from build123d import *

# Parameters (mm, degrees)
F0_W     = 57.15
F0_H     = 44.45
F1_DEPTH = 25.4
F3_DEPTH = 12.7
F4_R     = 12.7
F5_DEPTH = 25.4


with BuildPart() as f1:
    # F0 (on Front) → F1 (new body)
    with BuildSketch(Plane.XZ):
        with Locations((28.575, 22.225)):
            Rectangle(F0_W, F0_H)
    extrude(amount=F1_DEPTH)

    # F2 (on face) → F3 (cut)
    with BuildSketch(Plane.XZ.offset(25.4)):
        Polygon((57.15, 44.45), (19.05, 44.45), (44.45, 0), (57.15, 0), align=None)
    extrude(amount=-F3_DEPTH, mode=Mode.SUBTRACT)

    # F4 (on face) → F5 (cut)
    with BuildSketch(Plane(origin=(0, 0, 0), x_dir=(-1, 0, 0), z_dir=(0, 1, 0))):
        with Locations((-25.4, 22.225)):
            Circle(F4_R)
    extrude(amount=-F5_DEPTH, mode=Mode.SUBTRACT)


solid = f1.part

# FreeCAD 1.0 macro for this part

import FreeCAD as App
import Part
import Sketcher

V = App.Vector
Q = App.Units.Quantity

doc = App.newDocument("Part")
params = doc.addObject("Spreadsheet::Sheet", "Params")
for row, (alias, value) in enumerate([
    ("sketch1_width", "2.25 in"),
    ("sketch1_height", "1.75 in"),
    ("pad1_length", "1 in"),
    ("sketch2_width", "1.5 in"),
    ("sketch2_width2", "0.5 in"),
    ("sketch2_height", "1.75 in"),
    ("pocket1_length", "0.5 in"),
    ("sketch3_diameter", "1 in"),
    ("pocket2_length", "1 in"),
], start=1):
    params.set(f"A{row}", alias)
    params.set(f"B{row}", "=" + value)
    params.setAlias(f"B{row}", alias)

body = doc.addObject("PartDesign::Body", "Body")

# Sketch on XZ plane
sketch1 = body.newObject("Sketcher::SketchObject", "Sketch")
sketch1.AttachmentSupport = (doc.getObject("XZ_Plane"), [""])
sketch1.MapMode = "FlatFace"
sketch1.addGeometry([
    Part.LineSegment(V(0, 44.45, 0), V(0, 0, 0)),
    Part.LineSegment(V(0, 0, 0), V(57.15, 0, 0)),
    Part.LineSegment(V(57.15, 0, 0), V(57.15, 44.45, 0)),
    Part.LineSegment(V(57.15, 44.45, 0), V(0, 44.45, 0)),
], False)
sketch1.addConstraint([
    Sketcher.Constraint("Coincident", 0, 2, 1, 1),
    Sketcher.Constraint("Coincident", 1, 2, 2, 1),
    Sketcher.Constraint("Coincident", 2, 2, 3, 1),
    Sketcher.Constraint("Coincident", 3, 2, 0, 1),
    Sketcher.Constraint("Vertical", 0),
    Sketcher.Constraint("Horizontal", 1),
    Sketcher.Constraint("Vertical", 2),
    Sketcher.Constraint("Horizontal", 3),
    Sketcher.Constraint("Coincident", 0, 2, -1, 1),
    Sketcher.Constraint("DistanceX", 1, 1, 1, 2, Q("2.25 in")),
    Sketcher.Constraint("DistanceY", 0, 2, 0, 1, Q("1.75 in")),
])
sketch1.setExpression("Constraints[9]", "Params.sketch1_width")
sketch1.setExpression("Constraints[10]", "Params.sketch1_height")
pad1 = body.newObject("PartDesign::Pad", "Pad")
pad1.Profile = sketch1
pad1.setExpression("Length", "Params.pad1_length")

# Sketch on XZ plane
sketch2 = body.newObject("Sketcher::SketchObject", "Sketch001")
sketch2.AttachmentSupport = (doc.getObject("XZ_Plane"), [""])
sketch2.MapMode = "FlatFace"
sketch2.AttachmentOffset = App.Placement(V(0, 0, 1 * 25.4), App.Rotation())
sketch2.addGeometry([
    Part.LineSegment(V(57.15, 44.45, 0), V(19.05, 44.45, 0)),
    Part.LineSegment(V(19.05, 44.45, 0), V(44.45, 0, 0)),
    Part.LineSegment(V(44.45, 0, 0), V(57.15, 0, 0)),
    Part.LineSegment(V(57.15, 0, 0), V(57.15, 44.45, 0)),
], False)
sketch2.addConstraint([
    Sketcher.Constraint("Coincident", 0, 2, 1, 1),
    Sketcher.Constraint("Coincident", 1, 2, 2, 1),
    Sketcher.Constraint("Coincident", 2, 2, 3, 1),
    Sketcher.Constraint("Coincident", 3, 2, 0, 1),
    Sketcher.Constraint("Horizontal", 0),
    Sketcher.Constraint("Horizontal", 2),
    Sketcher.Constraint("Vertical", 3),
    Sketcher.Constraint("PointOnObject", 1, 2, -1),
    Sketcher.Constraint("DistanceX", 0, 2, 0, 1, Q("1.5 in")),
    Sketcher.Constraint("DistanceX", 2, 1, 2, 2, Q("0.5 in")),
    Sketcher.Constraint("DistanceY", 3, 1, 3, 2, Q("1.75 in")),
    Sketcher.Constraint("DistanceX", -1, 1, 0, 2, Q("0.75 in")),
])
sketch2.setExpression("Constraints[8]", "Params.sketch2_width")
sketch2.setExpression("Constraints[9]", "Params.sketch2_width2")
sketch2.setExpression("Constraints[10]", "Params.sketch2_height")
pocket1 = body.newObject("PartDesign::Pocket", "Pocket")
pocket1.Profile = sketch2
pocket1.setExpression("Length", "Params.pocket1_length")

# Sketch on XZ plane
sketch3 = body.newObject("Sketcher::SketchObject", "Sketch002")
sketch3.AttachmentSupport = (doc.getObject("XZ_Plane"), [""])
sketch3.MapMode = "FlatFace"
sketch3.addGeometry(Part.Circle(V(25.4, 22.225, 0), V(0, 0, 1), 12.7), False)
sketch3.addConstraint([
    Sketcher.Constraint("Diameter", 0, Q("1 in")),
    Sketcher.Constraint("DistanceX", -1, 1, 0, 3, Q("1 in")),
    Sketcher.Constraint("DistanceY", -1, 1, 0, 3, Q("0.875 in")),
])
sketch3.setExpression("Constraints[0]", "Params.sketch3_diameter")
pocket2 = body.newObject("PartDesign::Pocket", "Pocket001")
pocket2.Profile = sketch3
pocket2.setExpression("Length", "Params.pocket2_length")
pocket2.Reversed = True

doc.recompute()
